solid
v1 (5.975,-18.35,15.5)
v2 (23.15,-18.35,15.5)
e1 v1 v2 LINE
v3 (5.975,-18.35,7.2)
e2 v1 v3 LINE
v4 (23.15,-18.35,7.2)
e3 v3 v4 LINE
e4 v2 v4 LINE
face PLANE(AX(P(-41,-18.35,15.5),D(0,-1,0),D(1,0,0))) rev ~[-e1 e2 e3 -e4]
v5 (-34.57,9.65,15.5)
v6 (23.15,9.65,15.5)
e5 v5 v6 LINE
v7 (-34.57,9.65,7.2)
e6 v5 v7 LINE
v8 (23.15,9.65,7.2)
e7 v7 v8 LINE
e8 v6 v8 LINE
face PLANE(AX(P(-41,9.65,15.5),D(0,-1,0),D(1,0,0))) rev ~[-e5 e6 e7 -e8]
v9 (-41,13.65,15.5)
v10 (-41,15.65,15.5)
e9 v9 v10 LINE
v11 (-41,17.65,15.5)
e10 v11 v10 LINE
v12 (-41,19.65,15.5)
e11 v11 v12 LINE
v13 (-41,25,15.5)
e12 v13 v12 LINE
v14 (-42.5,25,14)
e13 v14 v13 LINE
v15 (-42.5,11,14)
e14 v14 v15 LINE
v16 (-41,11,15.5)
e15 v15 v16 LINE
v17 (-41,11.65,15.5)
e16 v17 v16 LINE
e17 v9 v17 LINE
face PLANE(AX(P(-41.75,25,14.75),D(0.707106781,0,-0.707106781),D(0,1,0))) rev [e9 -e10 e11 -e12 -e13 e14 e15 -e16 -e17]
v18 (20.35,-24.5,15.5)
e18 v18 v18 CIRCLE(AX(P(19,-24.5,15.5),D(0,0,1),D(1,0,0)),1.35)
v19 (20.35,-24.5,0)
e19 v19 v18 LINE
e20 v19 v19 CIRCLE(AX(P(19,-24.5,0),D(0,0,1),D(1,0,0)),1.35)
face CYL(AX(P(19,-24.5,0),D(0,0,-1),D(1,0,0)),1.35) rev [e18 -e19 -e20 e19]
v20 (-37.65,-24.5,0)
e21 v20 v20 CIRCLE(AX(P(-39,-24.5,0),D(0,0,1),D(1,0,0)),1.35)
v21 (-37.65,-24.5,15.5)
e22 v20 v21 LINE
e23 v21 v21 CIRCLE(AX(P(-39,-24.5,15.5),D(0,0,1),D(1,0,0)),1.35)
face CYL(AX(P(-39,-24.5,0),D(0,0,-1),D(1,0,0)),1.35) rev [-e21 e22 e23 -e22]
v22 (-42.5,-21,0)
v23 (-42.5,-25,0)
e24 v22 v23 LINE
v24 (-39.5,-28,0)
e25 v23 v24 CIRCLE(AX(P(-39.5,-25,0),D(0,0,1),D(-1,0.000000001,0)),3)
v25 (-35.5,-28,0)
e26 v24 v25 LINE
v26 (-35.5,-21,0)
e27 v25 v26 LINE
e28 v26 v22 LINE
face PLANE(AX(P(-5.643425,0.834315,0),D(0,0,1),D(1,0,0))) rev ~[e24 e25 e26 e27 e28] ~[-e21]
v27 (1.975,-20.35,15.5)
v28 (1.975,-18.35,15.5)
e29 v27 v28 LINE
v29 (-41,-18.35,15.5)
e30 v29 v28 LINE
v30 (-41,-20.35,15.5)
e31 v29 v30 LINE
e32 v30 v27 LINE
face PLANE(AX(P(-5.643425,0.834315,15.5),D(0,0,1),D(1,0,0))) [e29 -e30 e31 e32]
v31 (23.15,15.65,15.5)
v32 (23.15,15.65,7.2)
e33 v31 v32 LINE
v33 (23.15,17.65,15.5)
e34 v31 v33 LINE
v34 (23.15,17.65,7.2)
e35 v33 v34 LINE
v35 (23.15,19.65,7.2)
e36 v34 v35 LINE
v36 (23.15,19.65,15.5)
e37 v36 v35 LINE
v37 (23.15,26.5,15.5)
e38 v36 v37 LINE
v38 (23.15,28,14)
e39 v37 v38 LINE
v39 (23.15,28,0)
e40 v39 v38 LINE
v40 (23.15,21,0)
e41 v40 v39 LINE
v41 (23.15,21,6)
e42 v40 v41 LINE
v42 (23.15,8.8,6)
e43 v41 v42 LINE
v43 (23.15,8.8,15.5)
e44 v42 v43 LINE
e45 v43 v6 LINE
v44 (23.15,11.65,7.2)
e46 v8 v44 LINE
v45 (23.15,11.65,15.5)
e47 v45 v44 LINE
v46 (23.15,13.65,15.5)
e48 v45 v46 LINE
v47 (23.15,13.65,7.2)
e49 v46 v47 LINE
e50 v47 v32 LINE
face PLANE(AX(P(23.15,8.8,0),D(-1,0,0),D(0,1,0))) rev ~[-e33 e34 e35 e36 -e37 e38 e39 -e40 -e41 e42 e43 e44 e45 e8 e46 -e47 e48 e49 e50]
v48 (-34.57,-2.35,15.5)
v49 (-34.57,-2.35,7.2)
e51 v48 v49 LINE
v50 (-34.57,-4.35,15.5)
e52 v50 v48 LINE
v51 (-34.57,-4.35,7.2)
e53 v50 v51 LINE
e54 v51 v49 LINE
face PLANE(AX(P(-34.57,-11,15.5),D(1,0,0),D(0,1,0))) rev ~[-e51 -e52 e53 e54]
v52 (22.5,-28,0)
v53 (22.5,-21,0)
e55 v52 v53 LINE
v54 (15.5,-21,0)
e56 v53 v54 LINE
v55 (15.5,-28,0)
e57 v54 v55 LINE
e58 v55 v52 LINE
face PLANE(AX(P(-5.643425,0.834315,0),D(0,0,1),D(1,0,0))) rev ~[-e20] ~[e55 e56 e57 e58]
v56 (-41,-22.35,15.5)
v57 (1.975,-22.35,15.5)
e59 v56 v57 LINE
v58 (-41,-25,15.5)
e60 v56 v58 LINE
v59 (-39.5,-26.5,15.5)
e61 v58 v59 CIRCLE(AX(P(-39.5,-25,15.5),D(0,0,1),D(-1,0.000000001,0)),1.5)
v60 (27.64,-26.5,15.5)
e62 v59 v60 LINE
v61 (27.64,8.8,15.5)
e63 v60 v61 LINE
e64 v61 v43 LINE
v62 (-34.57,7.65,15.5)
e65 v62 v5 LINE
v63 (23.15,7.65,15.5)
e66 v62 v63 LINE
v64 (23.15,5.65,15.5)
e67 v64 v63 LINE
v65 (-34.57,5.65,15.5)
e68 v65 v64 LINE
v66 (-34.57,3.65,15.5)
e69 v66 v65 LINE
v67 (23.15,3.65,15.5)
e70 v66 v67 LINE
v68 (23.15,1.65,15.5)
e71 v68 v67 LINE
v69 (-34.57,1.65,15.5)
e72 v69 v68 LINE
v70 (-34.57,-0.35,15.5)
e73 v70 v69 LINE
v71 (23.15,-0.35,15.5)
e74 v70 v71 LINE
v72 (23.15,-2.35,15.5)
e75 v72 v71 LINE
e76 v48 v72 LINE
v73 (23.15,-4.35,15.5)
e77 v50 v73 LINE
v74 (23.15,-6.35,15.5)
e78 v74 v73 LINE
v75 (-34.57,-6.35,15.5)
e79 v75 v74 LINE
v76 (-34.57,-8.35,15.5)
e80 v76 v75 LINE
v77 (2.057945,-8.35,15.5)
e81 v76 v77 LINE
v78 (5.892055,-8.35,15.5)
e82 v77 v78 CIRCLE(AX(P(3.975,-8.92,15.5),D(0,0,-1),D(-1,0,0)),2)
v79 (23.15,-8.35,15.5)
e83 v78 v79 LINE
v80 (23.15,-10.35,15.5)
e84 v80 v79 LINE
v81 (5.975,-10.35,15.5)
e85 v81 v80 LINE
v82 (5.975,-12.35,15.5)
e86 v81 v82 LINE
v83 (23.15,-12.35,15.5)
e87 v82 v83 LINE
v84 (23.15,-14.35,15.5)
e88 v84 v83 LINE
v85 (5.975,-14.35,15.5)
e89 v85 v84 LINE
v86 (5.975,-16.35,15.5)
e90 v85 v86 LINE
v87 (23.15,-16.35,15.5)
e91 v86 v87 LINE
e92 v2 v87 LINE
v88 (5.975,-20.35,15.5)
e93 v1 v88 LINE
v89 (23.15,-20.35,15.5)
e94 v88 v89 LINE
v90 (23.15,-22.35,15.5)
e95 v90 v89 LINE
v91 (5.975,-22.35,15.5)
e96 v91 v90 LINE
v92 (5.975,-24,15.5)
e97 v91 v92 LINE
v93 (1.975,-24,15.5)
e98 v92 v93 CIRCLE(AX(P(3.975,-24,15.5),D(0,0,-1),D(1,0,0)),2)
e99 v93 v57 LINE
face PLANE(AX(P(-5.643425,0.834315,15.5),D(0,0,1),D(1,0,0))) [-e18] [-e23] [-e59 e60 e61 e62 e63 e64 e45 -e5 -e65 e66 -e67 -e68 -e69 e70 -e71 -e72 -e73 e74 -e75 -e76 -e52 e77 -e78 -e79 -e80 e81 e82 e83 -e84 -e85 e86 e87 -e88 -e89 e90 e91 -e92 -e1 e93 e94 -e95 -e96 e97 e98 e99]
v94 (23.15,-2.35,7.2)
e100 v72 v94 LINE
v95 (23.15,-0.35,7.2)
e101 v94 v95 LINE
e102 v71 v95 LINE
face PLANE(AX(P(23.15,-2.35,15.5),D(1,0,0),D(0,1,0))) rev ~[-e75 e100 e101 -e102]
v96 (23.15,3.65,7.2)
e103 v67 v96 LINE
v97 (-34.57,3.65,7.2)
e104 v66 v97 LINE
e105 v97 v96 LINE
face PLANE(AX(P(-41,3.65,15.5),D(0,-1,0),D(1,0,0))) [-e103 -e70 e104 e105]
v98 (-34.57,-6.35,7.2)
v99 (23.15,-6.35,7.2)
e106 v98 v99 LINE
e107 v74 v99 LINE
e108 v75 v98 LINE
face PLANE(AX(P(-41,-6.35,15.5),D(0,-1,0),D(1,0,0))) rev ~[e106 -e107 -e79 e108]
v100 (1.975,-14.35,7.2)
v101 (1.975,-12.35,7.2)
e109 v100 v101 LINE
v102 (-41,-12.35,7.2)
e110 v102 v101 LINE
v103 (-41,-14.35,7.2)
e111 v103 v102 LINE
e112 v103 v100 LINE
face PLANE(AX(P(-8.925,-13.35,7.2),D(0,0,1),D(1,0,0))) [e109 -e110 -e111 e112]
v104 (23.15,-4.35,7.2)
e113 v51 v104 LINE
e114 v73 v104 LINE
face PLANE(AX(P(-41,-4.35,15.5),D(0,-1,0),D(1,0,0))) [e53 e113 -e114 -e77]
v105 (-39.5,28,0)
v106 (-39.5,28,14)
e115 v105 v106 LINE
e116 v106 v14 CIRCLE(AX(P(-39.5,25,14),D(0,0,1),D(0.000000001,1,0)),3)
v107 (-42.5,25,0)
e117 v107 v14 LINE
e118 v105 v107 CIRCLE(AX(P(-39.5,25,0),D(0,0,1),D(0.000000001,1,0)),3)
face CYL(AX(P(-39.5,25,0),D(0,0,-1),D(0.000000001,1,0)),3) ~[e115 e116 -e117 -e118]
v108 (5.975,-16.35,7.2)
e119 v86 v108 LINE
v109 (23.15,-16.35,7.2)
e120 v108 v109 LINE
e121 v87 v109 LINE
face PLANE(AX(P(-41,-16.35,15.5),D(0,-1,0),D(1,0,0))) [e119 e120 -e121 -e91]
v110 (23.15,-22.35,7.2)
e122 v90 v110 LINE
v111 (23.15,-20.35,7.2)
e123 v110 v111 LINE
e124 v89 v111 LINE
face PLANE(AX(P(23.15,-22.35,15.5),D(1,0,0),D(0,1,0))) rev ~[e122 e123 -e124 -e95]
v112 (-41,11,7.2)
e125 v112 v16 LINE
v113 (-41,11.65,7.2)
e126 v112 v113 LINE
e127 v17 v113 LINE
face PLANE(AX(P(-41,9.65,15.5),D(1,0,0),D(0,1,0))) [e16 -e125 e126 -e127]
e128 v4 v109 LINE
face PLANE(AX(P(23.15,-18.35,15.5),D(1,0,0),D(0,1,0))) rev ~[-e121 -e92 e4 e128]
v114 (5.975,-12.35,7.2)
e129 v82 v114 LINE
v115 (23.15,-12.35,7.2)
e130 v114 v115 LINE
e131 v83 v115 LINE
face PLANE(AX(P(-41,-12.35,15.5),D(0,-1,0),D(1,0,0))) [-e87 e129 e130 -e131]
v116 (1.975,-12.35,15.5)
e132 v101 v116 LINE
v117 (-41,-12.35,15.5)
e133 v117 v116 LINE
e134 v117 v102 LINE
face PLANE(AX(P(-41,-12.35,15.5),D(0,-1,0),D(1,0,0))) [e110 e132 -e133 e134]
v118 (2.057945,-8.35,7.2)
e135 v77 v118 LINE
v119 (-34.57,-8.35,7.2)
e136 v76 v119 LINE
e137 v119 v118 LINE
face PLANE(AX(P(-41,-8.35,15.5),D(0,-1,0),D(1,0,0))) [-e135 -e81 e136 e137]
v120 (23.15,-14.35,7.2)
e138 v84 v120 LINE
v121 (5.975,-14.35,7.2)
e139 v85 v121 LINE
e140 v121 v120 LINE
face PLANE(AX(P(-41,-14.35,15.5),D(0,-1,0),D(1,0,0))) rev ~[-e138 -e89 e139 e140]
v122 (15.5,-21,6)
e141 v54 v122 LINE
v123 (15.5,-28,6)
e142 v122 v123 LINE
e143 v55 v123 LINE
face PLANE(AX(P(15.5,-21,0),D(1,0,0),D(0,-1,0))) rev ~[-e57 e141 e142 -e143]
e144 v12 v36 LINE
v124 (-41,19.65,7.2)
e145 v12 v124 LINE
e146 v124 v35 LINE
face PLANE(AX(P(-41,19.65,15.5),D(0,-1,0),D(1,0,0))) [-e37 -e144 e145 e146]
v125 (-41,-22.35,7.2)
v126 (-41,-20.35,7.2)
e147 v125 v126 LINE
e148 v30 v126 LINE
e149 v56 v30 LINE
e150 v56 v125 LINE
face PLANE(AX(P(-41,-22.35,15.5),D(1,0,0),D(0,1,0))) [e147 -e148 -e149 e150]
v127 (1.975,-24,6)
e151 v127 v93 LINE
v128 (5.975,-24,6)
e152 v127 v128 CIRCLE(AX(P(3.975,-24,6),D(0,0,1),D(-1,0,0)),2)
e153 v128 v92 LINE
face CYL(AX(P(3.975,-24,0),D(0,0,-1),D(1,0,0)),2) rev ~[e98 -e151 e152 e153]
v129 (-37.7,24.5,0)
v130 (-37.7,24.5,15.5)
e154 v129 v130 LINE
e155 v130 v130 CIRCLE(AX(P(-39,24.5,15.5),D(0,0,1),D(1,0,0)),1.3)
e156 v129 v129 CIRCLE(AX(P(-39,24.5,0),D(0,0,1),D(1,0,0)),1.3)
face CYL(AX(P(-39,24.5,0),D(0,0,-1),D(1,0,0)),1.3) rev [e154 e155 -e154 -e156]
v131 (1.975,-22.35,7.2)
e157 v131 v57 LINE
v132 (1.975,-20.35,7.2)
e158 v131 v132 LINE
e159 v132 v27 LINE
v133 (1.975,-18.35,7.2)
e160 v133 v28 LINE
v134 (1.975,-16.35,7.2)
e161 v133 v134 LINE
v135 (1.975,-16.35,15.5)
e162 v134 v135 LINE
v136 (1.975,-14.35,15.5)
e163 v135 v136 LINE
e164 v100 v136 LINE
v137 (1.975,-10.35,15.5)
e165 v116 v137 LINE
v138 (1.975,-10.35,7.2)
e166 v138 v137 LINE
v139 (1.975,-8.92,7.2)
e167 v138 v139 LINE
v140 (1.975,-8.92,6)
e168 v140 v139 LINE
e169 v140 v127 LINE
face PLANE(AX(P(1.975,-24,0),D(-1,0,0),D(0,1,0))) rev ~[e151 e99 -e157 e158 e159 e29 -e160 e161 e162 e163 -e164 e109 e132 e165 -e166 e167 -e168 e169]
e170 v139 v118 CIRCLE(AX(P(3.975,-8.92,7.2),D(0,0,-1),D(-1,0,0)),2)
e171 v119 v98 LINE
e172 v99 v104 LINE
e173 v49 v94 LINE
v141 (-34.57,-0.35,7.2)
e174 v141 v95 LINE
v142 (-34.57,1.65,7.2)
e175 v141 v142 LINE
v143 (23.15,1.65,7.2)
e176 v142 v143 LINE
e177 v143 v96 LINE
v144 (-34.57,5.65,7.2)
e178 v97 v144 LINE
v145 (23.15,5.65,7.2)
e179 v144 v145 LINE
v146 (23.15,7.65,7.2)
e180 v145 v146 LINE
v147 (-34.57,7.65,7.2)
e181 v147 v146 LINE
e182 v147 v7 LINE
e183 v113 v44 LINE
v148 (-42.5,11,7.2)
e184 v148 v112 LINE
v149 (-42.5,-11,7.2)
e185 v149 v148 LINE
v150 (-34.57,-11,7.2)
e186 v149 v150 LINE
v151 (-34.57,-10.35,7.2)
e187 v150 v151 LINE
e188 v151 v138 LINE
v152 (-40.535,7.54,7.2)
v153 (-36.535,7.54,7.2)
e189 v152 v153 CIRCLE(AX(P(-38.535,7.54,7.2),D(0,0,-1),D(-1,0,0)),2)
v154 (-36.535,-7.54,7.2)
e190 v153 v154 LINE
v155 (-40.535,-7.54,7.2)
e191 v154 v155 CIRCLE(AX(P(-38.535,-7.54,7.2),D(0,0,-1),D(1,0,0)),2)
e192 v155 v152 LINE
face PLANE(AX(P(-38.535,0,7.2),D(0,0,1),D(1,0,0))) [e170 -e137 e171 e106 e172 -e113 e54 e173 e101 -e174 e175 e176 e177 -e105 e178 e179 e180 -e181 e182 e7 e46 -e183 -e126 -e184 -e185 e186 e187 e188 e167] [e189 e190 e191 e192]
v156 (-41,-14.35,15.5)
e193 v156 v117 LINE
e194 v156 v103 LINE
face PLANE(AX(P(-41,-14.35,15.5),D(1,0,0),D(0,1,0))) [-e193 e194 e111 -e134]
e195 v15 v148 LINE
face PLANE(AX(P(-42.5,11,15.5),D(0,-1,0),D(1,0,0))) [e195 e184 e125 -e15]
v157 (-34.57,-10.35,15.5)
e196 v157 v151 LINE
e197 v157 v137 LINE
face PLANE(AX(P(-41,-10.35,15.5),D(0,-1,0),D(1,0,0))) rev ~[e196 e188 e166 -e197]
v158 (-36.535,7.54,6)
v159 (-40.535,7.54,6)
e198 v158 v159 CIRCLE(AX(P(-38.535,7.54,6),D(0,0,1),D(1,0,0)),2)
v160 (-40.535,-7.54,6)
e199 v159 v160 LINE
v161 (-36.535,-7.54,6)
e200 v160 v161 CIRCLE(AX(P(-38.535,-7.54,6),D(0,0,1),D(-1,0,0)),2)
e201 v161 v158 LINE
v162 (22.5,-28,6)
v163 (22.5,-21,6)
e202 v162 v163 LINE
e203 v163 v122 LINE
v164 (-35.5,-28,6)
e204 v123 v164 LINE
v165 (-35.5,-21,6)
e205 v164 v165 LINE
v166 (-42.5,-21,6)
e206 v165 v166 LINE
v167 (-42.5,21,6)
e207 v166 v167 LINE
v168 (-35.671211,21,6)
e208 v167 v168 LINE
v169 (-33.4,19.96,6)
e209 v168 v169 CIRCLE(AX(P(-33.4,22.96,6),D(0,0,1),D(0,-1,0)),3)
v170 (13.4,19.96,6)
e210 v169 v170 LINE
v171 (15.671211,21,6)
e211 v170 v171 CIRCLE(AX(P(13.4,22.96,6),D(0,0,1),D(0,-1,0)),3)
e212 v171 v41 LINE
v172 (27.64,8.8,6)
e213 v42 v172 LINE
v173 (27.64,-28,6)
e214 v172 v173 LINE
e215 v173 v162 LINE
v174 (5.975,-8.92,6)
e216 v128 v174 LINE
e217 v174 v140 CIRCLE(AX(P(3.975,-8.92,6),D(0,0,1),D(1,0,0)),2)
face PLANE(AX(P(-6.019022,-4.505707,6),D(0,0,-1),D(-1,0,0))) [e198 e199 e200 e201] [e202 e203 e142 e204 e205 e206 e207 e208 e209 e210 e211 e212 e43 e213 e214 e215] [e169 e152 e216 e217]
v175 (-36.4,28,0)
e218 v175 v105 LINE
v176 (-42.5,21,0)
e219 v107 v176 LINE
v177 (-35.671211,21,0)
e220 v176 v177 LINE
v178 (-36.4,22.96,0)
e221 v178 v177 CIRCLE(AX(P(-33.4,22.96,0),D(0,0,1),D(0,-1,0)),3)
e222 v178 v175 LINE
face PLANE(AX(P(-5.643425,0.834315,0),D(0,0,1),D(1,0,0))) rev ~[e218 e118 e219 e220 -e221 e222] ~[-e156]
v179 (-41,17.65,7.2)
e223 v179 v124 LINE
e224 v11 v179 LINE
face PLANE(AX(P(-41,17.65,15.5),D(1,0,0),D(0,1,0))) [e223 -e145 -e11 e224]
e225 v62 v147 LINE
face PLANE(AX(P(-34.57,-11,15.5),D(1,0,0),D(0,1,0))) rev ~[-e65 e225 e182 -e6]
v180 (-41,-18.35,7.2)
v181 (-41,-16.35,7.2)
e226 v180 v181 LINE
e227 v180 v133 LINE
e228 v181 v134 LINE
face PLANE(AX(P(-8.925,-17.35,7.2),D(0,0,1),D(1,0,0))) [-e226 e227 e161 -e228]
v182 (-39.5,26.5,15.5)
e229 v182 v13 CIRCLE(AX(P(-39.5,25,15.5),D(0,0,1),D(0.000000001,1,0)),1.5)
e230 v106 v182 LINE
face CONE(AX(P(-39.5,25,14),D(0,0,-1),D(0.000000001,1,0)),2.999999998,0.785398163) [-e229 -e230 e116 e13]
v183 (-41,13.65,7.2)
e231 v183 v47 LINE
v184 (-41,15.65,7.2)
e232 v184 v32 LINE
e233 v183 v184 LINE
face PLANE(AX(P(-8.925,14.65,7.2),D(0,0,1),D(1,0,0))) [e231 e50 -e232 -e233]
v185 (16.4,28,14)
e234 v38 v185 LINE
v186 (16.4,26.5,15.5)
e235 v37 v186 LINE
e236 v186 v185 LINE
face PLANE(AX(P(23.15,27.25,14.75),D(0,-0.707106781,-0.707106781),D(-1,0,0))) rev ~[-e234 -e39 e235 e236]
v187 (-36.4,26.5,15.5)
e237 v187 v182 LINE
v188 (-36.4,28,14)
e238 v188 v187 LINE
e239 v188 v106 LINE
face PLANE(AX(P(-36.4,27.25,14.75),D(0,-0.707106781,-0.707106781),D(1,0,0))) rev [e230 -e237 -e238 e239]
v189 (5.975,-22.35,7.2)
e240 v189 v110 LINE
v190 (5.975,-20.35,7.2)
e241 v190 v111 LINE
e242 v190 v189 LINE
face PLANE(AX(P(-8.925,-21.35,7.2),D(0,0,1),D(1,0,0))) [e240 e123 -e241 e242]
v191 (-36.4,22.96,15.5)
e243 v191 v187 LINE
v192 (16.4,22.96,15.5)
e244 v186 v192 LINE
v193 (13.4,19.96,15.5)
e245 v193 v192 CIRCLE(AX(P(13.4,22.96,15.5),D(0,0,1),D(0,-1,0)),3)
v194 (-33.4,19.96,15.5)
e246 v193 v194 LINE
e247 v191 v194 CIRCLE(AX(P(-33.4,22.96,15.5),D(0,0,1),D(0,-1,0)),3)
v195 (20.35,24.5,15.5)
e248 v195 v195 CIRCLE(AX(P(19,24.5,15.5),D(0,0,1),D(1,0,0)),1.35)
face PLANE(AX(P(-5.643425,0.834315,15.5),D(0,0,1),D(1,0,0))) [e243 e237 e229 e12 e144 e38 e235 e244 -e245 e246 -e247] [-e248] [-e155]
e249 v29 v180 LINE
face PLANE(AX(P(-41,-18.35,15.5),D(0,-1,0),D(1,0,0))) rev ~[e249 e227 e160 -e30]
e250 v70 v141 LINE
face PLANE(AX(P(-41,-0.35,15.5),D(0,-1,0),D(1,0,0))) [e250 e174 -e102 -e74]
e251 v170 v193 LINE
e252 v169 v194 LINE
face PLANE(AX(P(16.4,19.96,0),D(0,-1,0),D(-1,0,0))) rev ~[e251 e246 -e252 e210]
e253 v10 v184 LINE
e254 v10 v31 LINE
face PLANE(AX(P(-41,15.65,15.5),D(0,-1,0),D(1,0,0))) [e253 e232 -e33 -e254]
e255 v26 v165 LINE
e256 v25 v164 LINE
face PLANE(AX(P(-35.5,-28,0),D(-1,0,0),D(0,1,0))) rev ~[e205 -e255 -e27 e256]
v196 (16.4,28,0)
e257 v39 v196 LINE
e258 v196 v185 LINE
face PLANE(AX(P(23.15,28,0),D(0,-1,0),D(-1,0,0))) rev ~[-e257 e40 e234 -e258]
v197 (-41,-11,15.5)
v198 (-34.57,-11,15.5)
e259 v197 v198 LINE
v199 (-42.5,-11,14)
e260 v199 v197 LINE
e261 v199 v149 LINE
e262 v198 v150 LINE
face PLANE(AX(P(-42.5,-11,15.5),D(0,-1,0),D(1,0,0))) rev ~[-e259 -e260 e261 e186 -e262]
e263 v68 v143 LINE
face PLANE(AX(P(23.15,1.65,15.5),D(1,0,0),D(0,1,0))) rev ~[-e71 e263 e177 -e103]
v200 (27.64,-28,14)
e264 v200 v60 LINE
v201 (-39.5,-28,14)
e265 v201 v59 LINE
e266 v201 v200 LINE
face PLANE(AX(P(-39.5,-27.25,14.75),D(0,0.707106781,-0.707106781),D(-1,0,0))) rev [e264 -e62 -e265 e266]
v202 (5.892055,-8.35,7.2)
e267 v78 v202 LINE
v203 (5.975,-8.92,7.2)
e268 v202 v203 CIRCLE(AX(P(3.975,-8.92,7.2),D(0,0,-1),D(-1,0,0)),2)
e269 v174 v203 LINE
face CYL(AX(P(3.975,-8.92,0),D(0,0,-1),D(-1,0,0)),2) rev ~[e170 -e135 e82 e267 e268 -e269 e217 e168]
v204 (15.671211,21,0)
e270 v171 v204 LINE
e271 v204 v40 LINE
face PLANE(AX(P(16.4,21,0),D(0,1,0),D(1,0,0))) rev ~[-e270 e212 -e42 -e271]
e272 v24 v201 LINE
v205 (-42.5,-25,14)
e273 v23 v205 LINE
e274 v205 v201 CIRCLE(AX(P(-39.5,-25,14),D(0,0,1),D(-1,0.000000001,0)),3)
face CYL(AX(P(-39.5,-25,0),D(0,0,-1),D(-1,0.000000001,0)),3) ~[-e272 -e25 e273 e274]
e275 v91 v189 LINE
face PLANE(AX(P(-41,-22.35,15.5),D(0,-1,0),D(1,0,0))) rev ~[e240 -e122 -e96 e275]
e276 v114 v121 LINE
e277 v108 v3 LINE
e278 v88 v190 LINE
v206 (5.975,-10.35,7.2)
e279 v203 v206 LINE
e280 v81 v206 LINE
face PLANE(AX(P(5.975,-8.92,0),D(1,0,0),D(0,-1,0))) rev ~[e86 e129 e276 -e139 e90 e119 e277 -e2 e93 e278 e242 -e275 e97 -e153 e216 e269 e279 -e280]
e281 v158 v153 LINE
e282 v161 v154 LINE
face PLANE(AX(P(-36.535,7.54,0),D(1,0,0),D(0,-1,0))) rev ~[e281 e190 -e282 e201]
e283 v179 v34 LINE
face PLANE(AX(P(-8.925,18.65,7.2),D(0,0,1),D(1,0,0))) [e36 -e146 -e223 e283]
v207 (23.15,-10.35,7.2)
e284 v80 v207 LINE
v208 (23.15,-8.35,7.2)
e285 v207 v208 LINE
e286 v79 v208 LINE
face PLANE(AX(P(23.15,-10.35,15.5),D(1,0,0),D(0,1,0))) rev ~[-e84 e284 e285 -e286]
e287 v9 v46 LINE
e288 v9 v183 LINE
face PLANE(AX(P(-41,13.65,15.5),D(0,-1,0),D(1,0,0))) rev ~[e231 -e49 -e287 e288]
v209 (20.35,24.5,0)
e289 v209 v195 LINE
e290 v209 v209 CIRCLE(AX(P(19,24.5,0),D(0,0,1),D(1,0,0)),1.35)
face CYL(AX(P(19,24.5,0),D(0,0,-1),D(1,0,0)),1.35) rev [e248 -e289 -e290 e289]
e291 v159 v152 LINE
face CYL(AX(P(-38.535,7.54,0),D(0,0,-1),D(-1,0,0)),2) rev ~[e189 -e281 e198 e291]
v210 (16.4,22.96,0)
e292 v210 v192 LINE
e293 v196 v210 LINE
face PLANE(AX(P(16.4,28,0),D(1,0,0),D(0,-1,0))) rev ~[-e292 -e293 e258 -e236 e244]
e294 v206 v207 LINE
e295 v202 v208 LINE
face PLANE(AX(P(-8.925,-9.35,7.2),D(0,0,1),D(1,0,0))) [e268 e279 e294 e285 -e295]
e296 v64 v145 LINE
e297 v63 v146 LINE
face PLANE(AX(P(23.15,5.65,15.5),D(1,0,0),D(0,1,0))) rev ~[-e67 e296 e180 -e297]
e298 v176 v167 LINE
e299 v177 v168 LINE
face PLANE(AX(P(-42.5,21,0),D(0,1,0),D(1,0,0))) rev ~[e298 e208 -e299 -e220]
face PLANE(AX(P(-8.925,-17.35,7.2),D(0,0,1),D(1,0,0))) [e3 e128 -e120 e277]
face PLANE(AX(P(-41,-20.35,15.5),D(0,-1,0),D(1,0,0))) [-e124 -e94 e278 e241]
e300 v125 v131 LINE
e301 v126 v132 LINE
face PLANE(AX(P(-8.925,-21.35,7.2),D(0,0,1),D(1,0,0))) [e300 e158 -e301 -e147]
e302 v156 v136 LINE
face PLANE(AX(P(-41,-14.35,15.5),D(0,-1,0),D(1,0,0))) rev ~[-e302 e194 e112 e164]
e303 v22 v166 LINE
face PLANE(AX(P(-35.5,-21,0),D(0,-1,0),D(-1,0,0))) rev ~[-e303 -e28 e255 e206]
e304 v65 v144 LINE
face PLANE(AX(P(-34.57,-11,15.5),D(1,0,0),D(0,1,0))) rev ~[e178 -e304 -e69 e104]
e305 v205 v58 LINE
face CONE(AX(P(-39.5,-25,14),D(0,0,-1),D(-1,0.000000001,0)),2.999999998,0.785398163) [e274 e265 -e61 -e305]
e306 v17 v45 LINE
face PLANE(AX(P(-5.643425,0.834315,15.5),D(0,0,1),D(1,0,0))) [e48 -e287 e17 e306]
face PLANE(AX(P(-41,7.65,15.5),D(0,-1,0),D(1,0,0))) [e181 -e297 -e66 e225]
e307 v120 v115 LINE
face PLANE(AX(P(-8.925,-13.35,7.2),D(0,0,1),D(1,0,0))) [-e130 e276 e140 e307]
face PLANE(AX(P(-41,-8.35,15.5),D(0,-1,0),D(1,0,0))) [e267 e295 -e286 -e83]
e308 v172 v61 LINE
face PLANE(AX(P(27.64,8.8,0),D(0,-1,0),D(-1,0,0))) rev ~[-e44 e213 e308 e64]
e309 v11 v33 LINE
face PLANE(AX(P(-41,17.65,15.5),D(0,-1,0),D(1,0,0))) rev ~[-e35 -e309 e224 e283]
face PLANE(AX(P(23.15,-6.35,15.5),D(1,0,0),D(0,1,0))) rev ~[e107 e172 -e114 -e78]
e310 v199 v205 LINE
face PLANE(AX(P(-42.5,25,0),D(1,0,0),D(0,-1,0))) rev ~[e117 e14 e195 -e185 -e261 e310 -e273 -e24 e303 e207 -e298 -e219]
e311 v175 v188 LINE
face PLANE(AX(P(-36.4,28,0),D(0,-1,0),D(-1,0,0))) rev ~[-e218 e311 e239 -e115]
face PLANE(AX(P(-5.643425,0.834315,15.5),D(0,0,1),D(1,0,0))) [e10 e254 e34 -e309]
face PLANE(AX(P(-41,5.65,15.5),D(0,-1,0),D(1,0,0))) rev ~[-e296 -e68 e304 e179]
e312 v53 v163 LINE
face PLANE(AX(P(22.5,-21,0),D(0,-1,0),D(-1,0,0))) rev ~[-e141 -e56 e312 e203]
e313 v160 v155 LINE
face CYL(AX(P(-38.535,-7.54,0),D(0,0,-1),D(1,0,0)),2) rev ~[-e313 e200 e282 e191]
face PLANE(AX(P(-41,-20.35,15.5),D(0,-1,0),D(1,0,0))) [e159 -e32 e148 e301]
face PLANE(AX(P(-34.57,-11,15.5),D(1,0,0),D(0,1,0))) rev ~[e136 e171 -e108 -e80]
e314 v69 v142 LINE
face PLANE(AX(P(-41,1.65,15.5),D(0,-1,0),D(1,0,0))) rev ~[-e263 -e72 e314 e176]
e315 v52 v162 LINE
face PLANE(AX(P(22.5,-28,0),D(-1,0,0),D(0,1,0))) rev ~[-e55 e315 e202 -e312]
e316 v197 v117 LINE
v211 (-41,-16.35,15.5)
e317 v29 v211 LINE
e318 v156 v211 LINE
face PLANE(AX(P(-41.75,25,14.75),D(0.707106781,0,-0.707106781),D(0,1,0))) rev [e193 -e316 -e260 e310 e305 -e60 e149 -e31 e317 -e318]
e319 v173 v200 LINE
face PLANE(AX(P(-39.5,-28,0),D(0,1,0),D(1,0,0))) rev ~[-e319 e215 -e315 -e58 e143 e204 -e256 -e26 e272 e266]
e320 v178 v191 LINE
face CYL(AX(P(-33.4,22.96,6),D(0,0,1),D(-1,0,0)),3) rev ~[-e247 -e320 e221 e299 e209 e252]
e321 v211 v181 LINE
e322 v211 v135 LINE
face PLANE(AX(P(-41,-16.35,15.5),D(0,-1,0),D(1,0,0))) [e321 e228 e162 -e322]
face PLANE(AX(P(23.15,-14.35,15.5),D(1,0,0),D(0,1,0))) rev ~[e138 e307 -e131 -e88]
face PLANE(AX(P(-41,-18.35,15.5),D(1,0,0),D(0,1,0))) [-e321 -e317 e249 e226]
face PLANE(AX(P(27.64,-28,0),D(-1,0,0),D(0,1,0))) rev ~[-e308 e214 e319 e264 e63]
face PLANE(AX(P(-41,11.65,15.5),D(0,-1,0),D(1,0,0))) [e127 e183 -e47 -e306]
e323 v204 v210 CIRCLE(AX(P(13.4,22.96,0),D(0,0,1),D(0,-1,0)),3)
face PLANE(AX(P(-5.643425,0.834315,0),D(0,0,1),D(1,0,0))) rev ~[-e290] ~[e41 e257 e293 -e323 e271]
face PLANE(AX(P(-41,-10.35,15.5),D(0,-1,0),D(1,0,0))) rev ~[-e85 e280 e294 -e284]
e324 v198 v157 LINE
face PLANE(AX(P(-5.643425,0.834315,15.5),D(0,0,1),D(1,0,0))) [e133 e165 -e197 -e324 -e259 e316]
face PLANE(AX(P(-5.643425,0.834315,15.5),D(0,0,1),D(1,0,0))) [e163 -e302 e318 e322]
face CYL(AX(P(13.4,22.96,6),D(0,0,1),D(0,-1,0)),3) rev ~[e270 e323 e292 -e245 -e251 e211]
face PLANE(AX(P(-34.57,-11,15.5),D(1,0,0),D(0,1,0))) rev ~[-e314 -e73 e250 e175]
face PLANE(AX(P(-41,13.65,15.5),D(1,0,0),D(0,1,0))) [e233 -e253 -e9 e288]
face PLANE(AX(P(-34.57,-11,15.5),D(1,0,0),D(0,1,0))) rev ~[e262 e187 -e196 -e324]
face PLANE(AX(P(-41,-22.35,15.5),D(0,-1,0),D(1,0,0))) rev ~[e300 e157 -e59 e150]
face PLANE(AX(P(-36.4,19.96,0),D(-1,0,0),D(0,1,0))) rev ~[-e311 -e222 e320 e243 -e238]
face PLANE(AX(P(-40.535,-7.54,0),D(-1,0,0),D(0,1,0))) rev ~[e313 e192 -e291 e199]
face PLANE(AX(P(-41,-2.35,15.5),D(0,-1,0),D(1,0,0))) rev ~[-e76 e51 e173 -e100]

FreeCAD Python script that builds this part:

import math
import FreeCAD as App
import Part
import Sketcher
Q = App.Units.Quantity


def edges_at(feature, points):
    """Names of the edges that pass closest to the given points."""
    edges = feature.Shape.Edges
    near = lambda p: min(range(len(edges)), key=lambda i: edges[i].distToShape(Part.Vertex(*p))[0])
    return sorted({f"Edge{near(p) + 1}" for p in points})

doc = App.newDocument("Part")
body = doc.addObject("PartDesign::Body", "Body")

# Sketch on XY plane
sketch1 = body.newObject("Sketcher::SketchObject", "Sketch")
sketch1.AttachmentSupport = (doc.getObject("XY_Plane"), [""])
sketch1.MapMode = "FlatFace"
sketch1.addGeometry([
    Part.LineSegment(App.Vector(-36.4, 20, 0), App.Vector(-36.4, 28, 0)),  # 0
    Part.LineSegment(App.Vector(-36.4, 28, 0), App.Vector(-39.5, 28, 0)),  # 1
    Part.ArcOfCircle(Part.Circle(App.Vector(-39.5, 25, 0), App.Vector(0, 0, 1), 3), math.radians(90), math.radians(180)),  # 2
    Part.LineSegment(App.Vector(-42.5, 25, 0), App.Vector(-42.5, -25, 0)),  # 3
    Part.ArcOfCircle(Part.Circle(App.Vector(-39.5, -25, 0), App.Vector(0, 0, 1), 3), math.radians(180), math.radians(270)),  # 4
    Part.LineSegment(App.Vector(-39.5, -28, 0), App.Vector(27.6, -28, 0)),  # 5
    Part.LineSegment(App.Vector(27.6, -28, 0), App.Vector(27.6, 8.8, 0)),  # 6
    Part.LineSegment(App.Vector(27.6, 8.8, 0), App.Vector(23.1, 8.8, 0)),  # 7
    Part.LineSegment(App.Vector(23.1, 8.8, 0), App.Vector(23.1, 28, 0)),  # 8
    Part.LineSegment(App.Vector(23.1, 28, 0), App.Vector(16.4, 28, 0)),  # 9
    Part.LineSegment(App.Vector(16.4, 28, 0), App.Vector(16.4, 20, 0)),  # 10
    Part.LineSegment(App.Vector(16.4, 20, 0), App.Vector(-36.4, 20, 0)),  # 11
    Part.Circle(App.Vector(-39, -24.5, 0), App.Vector(0, 0, 1), 1.4),  # 12
    Part.LineSegment(App.Vector(2, -24, 0), App.Vector(2, -8.9, 0)),  # 13
    Part.ArcOfCircle(Part.Circle(App.Vector(4, -8.9, 0), App.Vector(0, 0, 1), 2), math.radians(0), math.radians(180)),  # 14
    Part.LineSegment(App.Vector(6, -8.9, 0), App.Vector(6, -24, 0)),  # 15
    Part.ArcOfCircle(Part.Circle(App.Vector(4, -24, 0), App.Vector(0, 0, 1), 2), math.radians(180), math.radians(360)),  # 16
    Part.Circle(App.Vector(19, -24.5, 0), App.Vector(0, 0, 1), 1.4),  # 17
    Part.LineSegment(App.Vector(-40.5, -7.5, 0), App.Vector(-40.5, 7.5, 0)),  # 18
    Part.ArcOfCircle(Part.Circle(App.Vector(-38.5, 7.5, 0), App.Vector(0, 0, 1), 2), math.radians(0), math.radians(180)),  # 19
    Part.LineSegment(App.Vector(-36.5, 7.5, 0), App.Vector(-36.5, -7.5, 0)),  # 20
    Part.ArcOfCircle(Part.Circle(App.Vector(-38.5, -7.5, 0), App.Vector(0, 0, 1), 2), math.radians(180), math.radians(360)),  # 21
    Part.Circle(App.Vector(-39, 24.5, 0), App.Vector(0, 0, 1), 1.3),  # 22
    Part.Circle(App.Vector(19, 24.5, 0), App.Vector(0, 0, 1), 1.4),  # 23
], False)
sketch1.addConstraint([
    Sketcher.Constraint("Coincident", 0, 2, 1, 1),
    Sketcher.Constraint("Tangent", 1, 2, 2, 1),
    Sketcher.Constraint("Tangent", 2, 2, 3, 1),
    Sketcher.Constraint("Tangent", 3, 2, 4, 1),
    Sketcher.Constraint("Tangent", 4, 2, 5, 1),
    Sketcher.Constraint("Coincident", 5, 2, 6, 1),
    Sketcher.Constraint("Coincident", 6, 2, 7, 1),
    Sketcher.Constraint("Coincident", 7, 2, 8, 1),
    Sketcher.Constraint("Coincident", 8, 2, 9, 1),
    Sketcher.Constraint("Coincident", 9, 2, 10, 1),
    Sketcher.Constraint("Coincident", 10, 2, 11, 1),
    Sketcher.Constraint("Coincident", 11, 2, 0, 1),
    Sketcher.Constraint("Tangent", 13, 2, 14, 2),
    Sketcher.Constraint("Tangent", 14, 1, 15, 1),
    Sketcher.Constraint("Tangent", 15, 2, 16, 2),
    Sketcher.Constraint("Tangent", 16, 1, 13, 1),
    Sketcher.Constraint("Tangent", 18, 2, 19, 2),
    Sketcher.Constraint("Tangent", 19, 1, 20, 1),
    Sketcher.Constraint("Tangent", 20, 2, 21, 2),
    Sketcher.Constraint("Tangent", 21, 1, 18, 1),
    Sketcher.Constraint("Vertical", 0),
    Sketcher.Constraint("Horizontal", 1),
    Sketcher.Constraint("Vertical", 3),
    Sketcher.Constraint("Horizontal", 5),
    Sketcher.Constraint("Vertical", 6),
    Sketcher.Constraint("Horizontal", 7),
    Sketcher.Constraint("Vertical", 8),
    Sketcher.Constraint("Horizontal", 9),
    Sketcher.Constraint("Vertical", 10),
    Sketcher.Constraint("Horizontal", 11),
    Sketcher.Constraint("Vertical", 13),
    Sketcher.Constraint("Vertical", 15),
    Sketcher.Constraint("Vertical", 18),
    Sketcher.Constraint("Vertical", 20),
    Sketcher.Constraint("Equal", 2, 4),
    Sketcher.Constraint("Equal", 12, 17),
    Sketcher.Constraint("Equal", 16, 19),
    Sketcher.Constraint("Equal", 17, 23),
    Sketcher.Constraint("Symmetric", 12, 3, 22, 3, -1),
    Sketcher.Constraint("Symmetric", 17, 3, 23, 3, -1),
    Sketcher.Constraint("Horizontal", 12, 3, 17, 3),
    Sketcher.Constraint("Horizontal", 1, 2, 8, 2),
    Sketcher.Constraint("Equal", 15, 18),
    Sketcher.Constraint("Radius", 2, Q("3 mm")),
    Sketcher.Constraint("Radius", 14, Q("2 mm")),
    Sketcher.Constraint("Diameter", 12, Q("2.7 mm")),
    Sketcher.Constraint("Diameter", 22, Q("2.6 mm")),
    Sketcher.Constraint("DistanceY", 3, 2, 3, 1, Q("50 mm")),
    Sketcher.Constraint("DistanceX", 1, 2, 1, 1, Q("3.1 mm")),
    Sketcher.Constraint("DistanceX", 11, 2, 11, 1, Q("52.8 mm")),
    Sketcher.Constraint("DistanceY", 6, 1, 6, 2, Q("36.8 mm")),
    Sketcher.Constraint("DistanceY", -1, 1, 2, 3, Q("25 mm")),
    Sketcher.Constraint("DistanceX", 12, 3, -1, 1, Q("39 mm")),
    Sketcher.Constraint("DistanceY", 16, 3, -1, 1, Q("24 mm")),
    Sketcher.Constraint("DistanceX", -1, 1, 17, 3, Q("19 mm")),
    Sketcher.Constraint("DistanceY", 12, 3, 22, 3, Q("49 mm")),
    Sketcher.Constraint("DistanceX", 5, 1, 5, 2, Q("67.14 mm")),
    Sketcher.Constraint("DistanceX", 7, 2, 7, 1, Q("4.49 mm")),
    Sketcher.Constraint("DistanceY", 0, 1, 0, 2, Q("8.04 mm")),
    Sketcher.Constraint("DistanceY", 13, 1, 13, 2, Q("15.08 mm")),
    Sketcher.Constraint("DistanceX", 2, 3, -1, 1, Q("39.5 mm")),
    Sketcher.Constraint("DistanceY", -1, 1, 19, 3, Q("7.54 mm")),
    Sketcher.Constraint("DistanceX", 19, 3, 14, 3, Q("42.51 mm")),
    Sketcher.Constraint("DistanceX", -1, 1, 14, 3, Q("3.975 mm")),
])
pad1 = body.newObject("PartDesign::Pad", "Pad")
pad1.Profile = sketch1
pad1.Length = 15.5

# Sketch on XY plane
sketch2 = body.newObject("Sketcher::SketchObject", "Sketch001")
sketch2.AttachmentSupport = (doc.getObject("XY_Plane"), [""])
sketch2.MapMode = "FlatFace"
sketch2.addGeometry([
    Part.LineSegment(App.Vector(16.4, 20, 0), App.Vector(16.4, 21, 0)),  # 0
    Part.LineSegment(App.Vector(16.4, 21, 0), App.Vector(23.1, 21, 0)),  # 1
    Part.LineSegment(App.Vector(23.1, 21, 0), App.Vector(23.1, 8.8, 0)),  # 2
    Part.LineSegment(App.Vector(23.1, 8.8, 0), App.Vector(27.6, 8.8, 0)),  # 3
    Part.LineSegment(App.Vector(27.6, 8.8, 0), App.Vector(27.6, -28, 0)),  # 4
    Part.LineSegment(App.Vector(27.6, -28, 0), App.Vector(22.5, -28, 0)),  # 5
    Part.LineSegment(App.Vector(22.5, -28, 0), App.Vector(22.5, -21, 0)),  # 6
    Part.LineSegment(App.Vector(22.5, -21, 0), App.Vector(15.5, -21, 0)),  # 7
    Part.LineSegment(App.Vector(15.5, -21, 0), App.Vector(15.5, -28, 0)),  # 8
    Part.LineSegment(App.Vector(15.5, -28, 0), App.Vector(-35.5, -28, 0)),  # 9
    Part.LineSegment(App.Vector(-35.5, -28, 0), App.Vector(-35.5, -21, 0)),  # 10
    Part.LineSegment(App.Vector(-35.5, -21, 0), App.Vector(-42.5, -21, 0)),  # 11
    Part.LineSegment(App.Vector(-42.5, -21, 0), App.Vector(-42.5, 21, 0)),  # 12
    Part.LineSegment(App.Vector(-42.5, 21, 0), App.Vector(-36.4, 21, 0)),  # 13
    Part.LineSegment(App.Vector(-36.4, 21, 0), App.Vector(-36.4, 20, 0)),  # 14
    Part.LineSegment(App.Vector(-36.4, 20, 0), App.Vector(16.4, 20, 0)),  # 15
    Part.ArcOfCircle(Part.Circle(App.Vector(4, -8.9, 0), App.Vector(0, 0, 1), 2), math.radians(0), math.radians(180)),  # 16
    Part.LineSegment(App.Vector(2, -8.9, 0), App.Vector(2, -24, 0)),  # 17
    Part.ArcOfCircle(Part.Circle(App.Vector(4, -24, 0), App.Vector(0, 0, 1), 2), math.radians(180), math.radians(360)),  # 18
    Part.LineSegment(App.Vector(6, -24, 0), App.Vector(6, -8.9, 0)),  # 19
    Part.ArcOfCircle(Part.Circle(App.Vector(-38.5, 7.5, 0), App.Vector(0, 0, 1), 2), math.radians(0), math.radians(180)),  # 20
    Part.LineSegment(App.Vector(-40.5, 7.5, 0), App.Vector(-40.5, -7.5, 0)),  # 21
    Part.ArcOfCircle(Part.Circle(App.Vector(-38.5, -7.5, 0), App.Vector(0, 0, 1), 2), math.radians(180), math.radians(360)),  # 22
    Part.LineSegment(App.Vector(-36.5, -7.5, 0), App.Vector(-36.5, 7.5, 0)),  # 23
], False)
sketch2.addConstraint([
    Sketcher.Constraint("Coincident", 0, 2, 1, 1),
    Sketcher.Constraint("Coincident", 1, 2, 2, 1),
    Sketcher.Constraint("Coincident", 2, 2, 3, 1),
    Sketcher.Constraint("Coincident", 3, 2, 4, 1),
    Sketcher.Constraint("Coincident", 4, 2, 5, 1),
    Sketcher.Constraint("Coincident", 5, 2, 6, 1),
    Sketcher.Constraint("Coincident", 6, 2, 7, 1),
    Sketcher.Constraint("Coincident", 7, 2, 8, 1),
    Sketcher.Constraint("Coincident", 8, 2, 9, 1),
    Sketcher.Constraint("Coincident", 9, 2, 10, 1),
    Sketcher.Constraint("Coincident", 10, 2, 11, 1),
    Sketcher.Constraint("Coincident", 11, 2, 12, 1),
    Sketcher.Constraint("Coincident", 12, 2, 13, 1),
    Sketcher.Constraint("Coincident", 13, 2, 14, 1),
    Sketcher.Constraint("Coincident", 14, 2, 15, 1),
    Sketcher.Constraint("Coincident", 15, 2, 0, 1),
    Sketcher.Constraint("Tangent", 16, 2, 17, 1),
    Sketcher.Constraint("Tangent", 17, 2, 18, 1),
    Sketcher.Constraint("Tangent", 18, 2, 19, 1),
    Sketcher.Constraint("Tangent", 19, 2, 16, 1),
    Sketcher.Constraint("Tangent", 20, 2, 21, 1),
    Sketcher.Constraint("Tangent", 21, 2, 22, 1),
    Sketcher.Constraint("Tangent", 22, 2, 23, 1),
    Sketcher.Constraint("Tangent", 23, 2, 20, 1),
    Sketcher.Constraint("Vertical", 0),
    Sketcher.Constraint("Horizontal", 1),
    Sketcher.Constraint("Vertical", 2),
    Sketcher.Constraint("Horizontal", 3),
    Sketcher.Constraint("Vertical", 4),
    Sketcher.Constraint("Horizontal", 5),
    Sketcher.Constraint("Vertical", 6),
    Sketcher.Constraint("Horizontal", 7),
    Sketcher.Constraint("Vertical", 8),
    Sketcher.Constraint("Horizontal", 9),
    Sketcher.Constraint("Vertical", 10),
    Sketcher.Constraint("Horizontal", 11),
    Sketcher.Constraint("Vertical", 12),
    Sketcher.Constraint("Horizontal", 13),
    Sketcher.Constraint("Vertical", 14),
    Sketcher.Constraint("Horizontal", 15),
    Sketcher.Constraint("Vertical", 17),
    Sketcher.Constraint("Vertical", 19),
    Sketcher.Constraint("Vertical", 21),
    Sketcher.Constraint("Vertical", 23),
    Sketcher.Constraint("Equal", 18, 20),
    Sketcher.Constraint("Horizontal", 5, 2, 8, 2),
    Sketcher.Constraint("Horizontal", 7, 2, 10, 2),
    Sketcher.Constraint("Horizontal", 1, 2, 12, 2),
    Sketcher.Constraint("Equal", 7, 11),
    Sketcher.Constraint("Equal", 11, 6),
    Sketcher.Constraint("Equal", 19, 21),
    Sketcher.Constraint("Radius", 16, Q("2 mm")),
    Sketcher.Constraint("DistanceX", 7, 2, 7, 1, Q("7 mm")),
    Sketcher.Constraint("DistanceX", 9, 2, 9, 1, Q("51 mm")),
    Sketcher.Constraint("DistanceY", 12, 1, 12, 2, Q("42 mm")),
    Sketcher.Constraint("DistanceX", 13, 1, 13, 2, Q("6.1 mm")),
    Sketcher.Constraint("DistanceX", 15, 1, 15, 2, Q("52.8 mm")),
    Sketcher.Constraint("DistanceY", 2, 2, 2, 1, Q("12.2 mm")),
    Sketcher.Constraint("DistanceY", 18, 3, -1, 1, Q("24 mm")),
    Sketcher.Constraint("DistanceY", -1, 1, 0, 2, Q("21 mm")),
    Sketcher.Constraint("DistanceX", 1, 1, 1, 2, Q("6.75 mm")),
    Sketcher.Constraint("DistanceX", 3, 1, 3, 2, Q("4.49 mm")),
    Sketcher.Constraint("DistanceY", 0, 1, 0, 2, Q("1.04 mm")),
    Sketcher.Constraint("DistanceY", 17, 2, 17, 1, Q("15.08 mm")),
    Sketcher.Constraint("DistanceX", -1, 1, 0, 2, Q("16.4 mm")),
    Sketcher.Constraint("DistanceY", 22, 3, 14, 2, Q("27.5 mm")),
    Sketcher.Constraint("DistanceX", 20, 3, 16, 3, Q("42.51 mm")),
    Sketcher.Constraint("DistanceX", -1, 1, 16, 3, Q("3.975 mm")),
])
pocket1 = body.newObject("PartDesign::Pocket", "Pocket")
pocket1.Profile = sketch2
pocket1.Length = 6
pocket1.Reversed = True
doc.recompute()

fillet = body.newObject("PartDesign::Fillet", "Fillet")
fillet.Base = (pocket1, edges_at(pocket1, [(-36.4, 19.96, 10.75), (16.4, 19.96, 10.75)]))
fillet.Radius = 3
doc.recompute()

chamfer = body.newObject("PartDesign::Chamfer", "Chamfer")
chamfer.Base = (fillet, edges_at(fillet, [
    (-37.95, 28, 15.5),
    (-41.621, 27.121, 15.5),
    (-42.5, 0, 15.5),
    (-41.621, -27.121, 15.5),
    (-5.93, -28, 15.5),
    (19.775, 28, 15.5),
]))
chamfer.Size = 1.5

# Sketch on XY plane
sketch3 = body.newObject("Sketcher::SketchObject", "Sketch002")
sketch3.AttachmentSupport = (doc.getObject("XY_Plane"), [""])
sketch3.MapMode = "FlatFace"
sketch3.AttachmentOffset = App.Placement(App.Vector(0, 0, 15.5), App.Rotation())
sketch3.addGeometry([
    Part.LineSegment(App.Vector(-42, 11, 0), App.Vector(-42, -11, 0)),
    Part.LineSegment(App.Vector(-42, -11, 0), App.Vector(-35, -11, 0)),
    Part.LineSegment(App.Vector(-35, -11, 0), App.Vector(-35, 11, 0)),
    Part.LineSegment(App.Vector(-35, 11, 0), App.Vector(-42, 11, 0)),
], False)
sketch3.addConstraint([
    Sketcher.Constraint("Coincident", 0, 2, 1, 1),
    Sketcher.Constraint("Coincident", 1, 2, 2, 1),
    Sketcher.Constraint("Coincident", 2, 2, 3, 1),
    Sketcher.Constraint("Coincident", 3, 2, 0, 1),
    Sketcher.Constraint("Vertical", 0),
    Sketcher.Constraint("Horizontal", 1),
    Sketcher.Constraint("Vertical", 2),
    Sketcher.Constraint("Horizontal", 3),
    Sketcher.Constraint("DistanceY", 0, 2, 0, 1, Q("22 mm")),
    Sketcher.Constraint("DistanceY", 0, 2, -1, 1, Q("11 mm")),
    Sketcher.Constraint("DistanceX", 1, 1, 1, 2, Q("7.93 mm")),
    Sketcher.Constraint("DistanceX", 0, 2, -1, 1, Q("42.5 mm")),
])
pocket2 = body.newObject("PartDesign::Pocket", "Pocket001")
pocket2.Profile = sketch3
pocket2.Length = 8.3

# Sketch on XY plane
sketch4 = body.newObject("Sketcher::SketchObject", "Sketch003")
sketch4.AttachmentSupport = (doc.getObject("XY_Plane"), [""])
sketch4.MapMode = "FlatFace"
sketch4.AttachmentOffset = App.Placement(App.Vector(0, 0, 15.5), App.Rotation())
sketch4.addGeometry([
    Part.LineSegment(App.Vector(-41, 19.6, 0), App.Vector(-41, 17.6, 0)),  # 0
    Part.LineSegment(App.Vector(-41, 17.6, 0), App.Vector(23.1, 17.6, 0)),  # 1
    Part.LineSegment(App.Vector(23.1, 17.6, 0), App.Vector(23.1, 19.6, 0)),  # 2
    Part.LineSegment(App.Vector(23.1, 19.6, 0), App.Vector(-41, 19.6, 0)),  # 3
    Part.LineSegment(App.Vector(-41, 15.7, 0), App.Vector(-41, 13.7, 0)),  # 4
    Part.LineSegment(App.Vector(-41, 13.7, 0), App.Vector(23.1, 13.7, 0)),  # 5
    Part.LineSegment(App.Vector(23.1, 13.7, 0), App.Vector(23.1, 15.7, 0)),  # 6
    Part.LineSegment(App.Vector(23.1, 15.7, 0), App.Vector(-41, 15.7, 0)),  # 7
    Part.LineSegment(App.Vector(-41, 11.7, 0), App.Vector(-41, 9.7, 0)),  # 8
    Part.LineSegment(App.Vector(-41, 9.7, 0), App.Vector(23.1, 9.7, 0)),  # 9
    Part.LineSegment(App.Vector(23.1, 9.7, 0), App.Vector(23.1, 11.7, 0)),  # 10
    Part.LineSegment(App.Vector(23.1, 11.7, 0), App.Vector(-41, 11.7, 0)),  # 11
    Part.LineSegment(App.Vector(-41, 7.7, 0), App.Vector(-41, 5.7, 0)),  # 12
    Part.LineSegment(App.Vector(-41, 5.7, 0), App.Vector(23.1, 5.7, 0)),  # 13
    Part.LineSegment(App.Vector(23.1, 5.7, 0), App.Vector(23.1, 7.7, 0)),  # 14
    Part.LineSegment(App.Vector(23.1, 7.7, 0), App.Vector(-41, 7.7, 0)),  # 15
    Part.LineSegment(App.Vector(-41, 3.6, 0), App.Vector(-41, 1.6, 0)),  # 16
    Part.LineSegment(App.Vector(-41, 1.6, 0), App.Vector(23.1, 1.6, 0)),  # 17
    Part.LineSegment(App.Vector(23.1, 1.6, 0), App.Vector(23.1, 3.6, 0)),  # 18
    Part.LineSegment(App.Vector(23.1, 3.6, 0), App.Vector(-41, 3.6, 0)),  # 19
    Part.LineSegment(App.Vector(-41, -0.3, 0), App.Vector(-41, -2.4, 0)),  # 20
    Part.LineSegment(App.Vector(-41, -2.4, 0), App.Vector(23.1, -2.4, 0)),  # 21
    Part.LineSegment(App.Vector(23.1, -2.4, 0), App.Vector(23.1, -0.3, 0)),  # 22
    Part.LineSegment(App.Vector(23.1, -0.3, 0), App.Vector(-41, -0.3, 0)),  # 23
    Part.LineSegment(App.Vector(-41, -4.3, 0), App.Vector(-41, -6.3, 0)),  # 24
    Part.LineSegment(App.Vector(-41, -6.3, 0), App.Vector(23.1, -6.3, 0)),  # 25
    Part.LineSegment(App.Vector(23.1, -6.3, 0), App.Vector(23.1, -4.3, 0)),  # 26
    Part.LineSegment(App.Vector(23.1, -4.3, 0), App.Vector(-41, -4.3, 0)),  # 27
    Part.LineSegment(App.Vector(-41, -8.3, 0), App.Vector(-41, -10.3, 0)),  # 28
    Part.LineSegment(App.Vector(-41, -10.3, 0), App.Vector(23.1, -10.3, 0)),  # 29
    Part.LineSegment(App.Vector(23.1, -10.3, 0), App.Vector(23.1, -8.3, 0)),  # 30
    Part.LineSegment(App.Vector(23.1, -8.3, 0), App.Vector(-41, -8.3, 0)),  # 31
    Part.LineSegment(App.Vector(-41, -12.3, 0), App.Vector(-41, -14.3, 0)),  # 32
    Part.LineSegment(App.Vector(-41, -14.3, 0), App.Vector(23.1, -14.3, 0)),  # 33
    Part.LineSegment(App.Vector(23.1, -14.3, 0), App.Vector(23.1, -12.3, 0)),  # 34
    Part.LineSegment(App.Vector(23.1, -12.3, 0), App.Vector(-41, -12.3, 0)),  # 35
    Part.LineSegment(App.Vector(-41, -16.4, 0), App.Vector(-41, -18.4, 0)),  # 36
    Part.LineSegment(App.Vector(-41, -18.4, 0), App.Vector(23.1, -18.4, 0)),  # 37
    Part.LineSegment(App.Vector(23.1, -18.4, 0), App.Vector(23.1, -16.4, 0)),  # 38
    Part.LineSegment(App.Vector(23.1, -16.4, 0), App.Vector(-41, -16.4, 0)),  # 39
    Part.LineSegment(App.Vector(-41, -20.4, 0), App.Vector(-41, -22.4, 0)),  # 40
    Part.LineSegment(App.Vector(-41, -22.4, 0), App.Vector(23.1, -22.4, 0)),  # 41
    Part.LineSegment(App.Vector(23.1, -22.4, 0), App.Vector(23.1, -20.4, 0)),  # 42
    Part.LineSegment(App.Vector(23.1, -20.4, 0), App.Vector(-41, -20.4, 0)),  # 43
], False)
sketch4.addConstraint([
    Sketcher.Constraint("Coincident", 0, 2, 1, 1),
    Sketcher.Constraint("Coincident", 1, 2, 2, 1),
    Sketcher.Constraint("Coincident", 2, 2, 3, 1),
    Sketcher.Constraint("Coincident", 3, 2, 0, 1),
    Sketcher.Constraint("Coincident", 4, 2, 5, 1),
    Sketcher.Constraint("Coincident", 5, 2, 6, 1),
    Sketcher.Constraint("Coincident", 6, 2, 7, 1),
    Sketcher.Constraint("Coincident", 7, 2, 4, 1),
    Sketcher.Constraint("Coincident", 8, 2, 9, 1),
    Sketcher.Constraint("Coincident", 9, 2, 10, 1),
    Sketcher.Constraint("Coincident", 10, 2, 11, 1),
    Sketcher.Constraint("Coincident", 11, 2, 8, 1),
    Sketcher.Constraint("Coincident", 12, 2, 13, 1),
    Sketcher.Constraint("Coincident", 13, 2, 14, 1),
    Sketcher.Constraint("Coincident", 14, 2, 15, 1),
    Sketcher.Constraint("Coincident", 15, 2, 12, 1),
    Sketcher.Constraint("Coincident", 16, 2, 17, 1),
    Sketcher.Constraint("Coincident", 17, 2, 18, 1),
    Sketcher.Constraint("Coincident", 18, 2, 19, 1),
    Sketcher.Constraint("Coincident", 19, 2, 16, 1),
    Sketcher.Constraint("Coincident", 20, 2, 21, 1),
    Sketcher.Constraint("Coincident", 21, 2, 22, 1),
    Sketcher.Constraint("Coincident", 22, 2, 23, 1),
    Sketcher.Constraint("Coincident", 23, 2, 20, 1),
    Sketcher.Constraint("Coincident", 24, 2, 25, 1),
    Sketcher.Constraint("Coincident", 25, 2, 26, 1),
    Sketcher.Constraint("Coincident", 26, 2, 27, 1),
    Sketcher.Constraint("Coincident", 27, 2, 24, 1),
    Sketcher.Constraint("Coincident", 28, 2, 29, 1),
    Sketcher.Constraint("Coincident", 29, 2, 30, 1),
    Sketcher.Constraint("Coincident", 30, 2, 31, 1),
    Sketcher.Constraint("Coincident", 31, 2, 28, 1),
    Sketcher.Constraint("Coincident", 32, 2, 33, 1),
    Sketcher.Constraint("Coincident", 33, 2, 34, 1),
    Sketcher.Constraint("Coincident", 34, 2, 35, 1),
    Sketcher.Constraint("Coincident", 35, 2, 32, 1),
    Sketcher.Constraint("Coincident", 36, 2, 37, 1),
    Sketcher.Constraint("Coincident", 37, 2, 38, 1),
    Sketcher.Constraint("Coincident", 38, 2, 39, 1),
    Sketcher.Constraint("Coincident", 39, 2, 36, 1),
    Sketcher.Constraint("Coincident", 40, 2, 41, 1),
    Sketcher.Constraint("Coincident", 41, 2, 42, 1),
    Sketcher.Constraint("Coincident", 42, 2, 43, 1),
    Sketcher.Constraint("Coincident", 43, 2, 40, 1),
    Sketcher.Constraint("Vertical", 0),
    Sketcher.Constraint("Horizontal", 1),
    Sketcher.Constraint("Vertical", 2),
    Sketcher.Constraint("Horizontal", 3),
    Sketcher.Constraint("Vertical", 4),
    Sketcher.Constraint("Horizontal", 5),
    Sketcher.Constraint("Vertical", 6),
    Sketcher.Constraint("Horizontal", 7),
    Sketcher.Constraint("Vertical", 8),
    Sketcher.Constraint("Horizontal", 9),
    Sketcher.Constraint("Vertical", 10),
    Sketcher.Constraint("Horizontal", 11),
    Sketcher.Constraint("Vertical", 12),
    Sketcher.Constraint("Horizontal", 13),
    Sketcher.Constraint("Vertical", 14),
    Sketcher.Constraint("Horizontal", 15),
    Sketcher.Constraint("Vertical", 16),
    Sketcher.Constraint("Horizontal", 17),
    Sketcher.Constraint("Vertical", 18),
    Sketcher.Constraint("Horizontal", 19),
    Sketcher.Constraint("Vertical", 20),
    Sketcher.Constraint("Horizontal", 21),
    Sketcher.Constraint("Vertical", 22),
    Sketcher.Constraint("Horizontal", 23),
    Sketcher.Constraint("Vertical", 24),
    Sketcher.Constraint("Horizontal", 25),
    Sketcher.Constraint("Vertical", 26),
    Sketcher.Constraint("Horizontal", 27),
    Sketcher.Constraint("Vertical", 28),
    Sketcher.Constraint("Horizontal", 29),
    Sketcher.Constraint("Vertical", 30),
    Sketcher.Constraint("Horizontal", 31),
    Sketcher.Constraint("Vertical", 32),
    Sketcher.Constraint("Horizontal", 33),
    Sketcher.Constraint("Vertical", 34),
    Sketcher.Constraint("Horizontal", 35),
    Sketcher.Constraint("Vertical", 36),
    Sketcher.Constraint("Horizontal", 37),
    Sketcher.Constraint("Vertical", 38),
    Sketcher.Constraint("Horizontal", 39),
    Sketcher.Constraint("Vertical", 40),
    Sketcher.Constraint("Horizontal", 41),
    Sketcher.Constraint("Vertical", 42),
    Sketcher.Constraint("Horizontal", 43),
    Sketcher.Constraint("Vertical", 3, 2, 4, 2),
    Sketcher.Constraint("Vertical", 2, 2, 5, 2),
    Sketcher.Constraint("Vertical", 7, 2, 8, 2),
    Sketcher.Constraint("Vertical", 6, 2, 9, 2),
    Sketcher.Constraint("Vertical", 11, 2, 12, 2),
    Sketcher.Constraint("Vertical", 10, 2, 13, 2),
    Sketcher.Constraint("Vertical", 15, 2, 16, 2),
    Sketcher.Constraint("Vertical", 14, 2, 17, 2),
    Sketcher.Constraint("Vertical", 19, 2, 20, 2),
    Sketcher.Constraint("Vertical", 18, 2, 21, 2),
    Sketcher.Constraint("Vertical", 23, 2, 24, 2),
    Sketcher.Constraint("Vertical", 22, 2, 25, 2),
    Sketcher.Constraint("Vertical", 27, 2, 28, 2),
    Sketcher.Constraint("Vertical", 26, 2, 29, 2),
    Sketcher.Constraint("Vertical", 31, 2, 32, 2),
    Sketcher.Constraint("Vertical", 30, 2, 33, 2),
    Sketcher.Constraint("Vertical", 35, 2, 36, 2),
    Sketcher.Constraint("Vertical", 34, 2, 37, 2),
    Sketcher.Constraint("Vertical", 39, 2, 40, 2),
    Sketcher.Constraint("Vertical", 38, 2, 41, 2),
    Sketcher.Constraint("Equal", 2, 4),
    Sketcher.Constraint("Equal", 6, 8),
    Sketcher.Constraint("Equal", 10, 12),
    Sketcher.Constraint("Equal", 14, 16),
    Sketcher.Constraint("Equal", 18, 20),
    Sketcher.Constraint("Equal", 22, 24),
    Sketcher.Constraint("Equal", 26, 28),
    Sketcher.Constraint("Equal", 30, 32),
    Sketcher.Constraint("Equal", 34, 36),
    Sketcher.Constraint("Equal", 38, 40),
    Sketcher.Constraint("DistanceY", 0, 2, 0, 1, Q("2 mm")),
    Sketcher.Constraint("DistanceX", 0, 2, -1, 1, Q("41 mm")),
    Sketcher.Constraint("DistanceY", 4, 2, 0, 2, Q("4 mm")),
    Sketcher.Constraint("DistanceY", 8, 2, 4, 2, Q("4 mm")),
    Sketcher.Constraint("DistanceY", 12, 2, 8, 2, Q("4 mm")),
    Sketcher.Constraint("DistanceY", 16, 2, 12, 2, Q("4 mm")),
    Sketcher.Constraint("DistanceY", 20, 2, 16, 2, Q("4 mm")),
    Sketcher.Constraint("DistanceY", 24, 2, 20, 2, Q("4 mm")),
    Sketcher.Constraint("DistanceY", 28, 2, 24, 2, Q("4 mm")),
    Sketcher.Constraint("DistanceY", 32, 2, 28, 2, Q("4 mm")),
    Sketcher.Constraint("DistanceY", 36, 2, 32, 2, Q("4 mm")),
    Sketcher.Constraint("DistanceY", 40, 2, 36, 2, Q("4 mm")),
    Sketcher.Constraint("DistanceX", 1, 1, 1, 2, Q("64.15 mm")),
    Sketcher.Constraint("DistanceY", -1, 1, 0, 2, Q("17.65 mm")),
])
pocket3 = body.newObject("PartDesign::Pocket", "Pocket002")
pocket3.Profile = sketch4
pocket3.Length = 8.3

doc.recompute()
